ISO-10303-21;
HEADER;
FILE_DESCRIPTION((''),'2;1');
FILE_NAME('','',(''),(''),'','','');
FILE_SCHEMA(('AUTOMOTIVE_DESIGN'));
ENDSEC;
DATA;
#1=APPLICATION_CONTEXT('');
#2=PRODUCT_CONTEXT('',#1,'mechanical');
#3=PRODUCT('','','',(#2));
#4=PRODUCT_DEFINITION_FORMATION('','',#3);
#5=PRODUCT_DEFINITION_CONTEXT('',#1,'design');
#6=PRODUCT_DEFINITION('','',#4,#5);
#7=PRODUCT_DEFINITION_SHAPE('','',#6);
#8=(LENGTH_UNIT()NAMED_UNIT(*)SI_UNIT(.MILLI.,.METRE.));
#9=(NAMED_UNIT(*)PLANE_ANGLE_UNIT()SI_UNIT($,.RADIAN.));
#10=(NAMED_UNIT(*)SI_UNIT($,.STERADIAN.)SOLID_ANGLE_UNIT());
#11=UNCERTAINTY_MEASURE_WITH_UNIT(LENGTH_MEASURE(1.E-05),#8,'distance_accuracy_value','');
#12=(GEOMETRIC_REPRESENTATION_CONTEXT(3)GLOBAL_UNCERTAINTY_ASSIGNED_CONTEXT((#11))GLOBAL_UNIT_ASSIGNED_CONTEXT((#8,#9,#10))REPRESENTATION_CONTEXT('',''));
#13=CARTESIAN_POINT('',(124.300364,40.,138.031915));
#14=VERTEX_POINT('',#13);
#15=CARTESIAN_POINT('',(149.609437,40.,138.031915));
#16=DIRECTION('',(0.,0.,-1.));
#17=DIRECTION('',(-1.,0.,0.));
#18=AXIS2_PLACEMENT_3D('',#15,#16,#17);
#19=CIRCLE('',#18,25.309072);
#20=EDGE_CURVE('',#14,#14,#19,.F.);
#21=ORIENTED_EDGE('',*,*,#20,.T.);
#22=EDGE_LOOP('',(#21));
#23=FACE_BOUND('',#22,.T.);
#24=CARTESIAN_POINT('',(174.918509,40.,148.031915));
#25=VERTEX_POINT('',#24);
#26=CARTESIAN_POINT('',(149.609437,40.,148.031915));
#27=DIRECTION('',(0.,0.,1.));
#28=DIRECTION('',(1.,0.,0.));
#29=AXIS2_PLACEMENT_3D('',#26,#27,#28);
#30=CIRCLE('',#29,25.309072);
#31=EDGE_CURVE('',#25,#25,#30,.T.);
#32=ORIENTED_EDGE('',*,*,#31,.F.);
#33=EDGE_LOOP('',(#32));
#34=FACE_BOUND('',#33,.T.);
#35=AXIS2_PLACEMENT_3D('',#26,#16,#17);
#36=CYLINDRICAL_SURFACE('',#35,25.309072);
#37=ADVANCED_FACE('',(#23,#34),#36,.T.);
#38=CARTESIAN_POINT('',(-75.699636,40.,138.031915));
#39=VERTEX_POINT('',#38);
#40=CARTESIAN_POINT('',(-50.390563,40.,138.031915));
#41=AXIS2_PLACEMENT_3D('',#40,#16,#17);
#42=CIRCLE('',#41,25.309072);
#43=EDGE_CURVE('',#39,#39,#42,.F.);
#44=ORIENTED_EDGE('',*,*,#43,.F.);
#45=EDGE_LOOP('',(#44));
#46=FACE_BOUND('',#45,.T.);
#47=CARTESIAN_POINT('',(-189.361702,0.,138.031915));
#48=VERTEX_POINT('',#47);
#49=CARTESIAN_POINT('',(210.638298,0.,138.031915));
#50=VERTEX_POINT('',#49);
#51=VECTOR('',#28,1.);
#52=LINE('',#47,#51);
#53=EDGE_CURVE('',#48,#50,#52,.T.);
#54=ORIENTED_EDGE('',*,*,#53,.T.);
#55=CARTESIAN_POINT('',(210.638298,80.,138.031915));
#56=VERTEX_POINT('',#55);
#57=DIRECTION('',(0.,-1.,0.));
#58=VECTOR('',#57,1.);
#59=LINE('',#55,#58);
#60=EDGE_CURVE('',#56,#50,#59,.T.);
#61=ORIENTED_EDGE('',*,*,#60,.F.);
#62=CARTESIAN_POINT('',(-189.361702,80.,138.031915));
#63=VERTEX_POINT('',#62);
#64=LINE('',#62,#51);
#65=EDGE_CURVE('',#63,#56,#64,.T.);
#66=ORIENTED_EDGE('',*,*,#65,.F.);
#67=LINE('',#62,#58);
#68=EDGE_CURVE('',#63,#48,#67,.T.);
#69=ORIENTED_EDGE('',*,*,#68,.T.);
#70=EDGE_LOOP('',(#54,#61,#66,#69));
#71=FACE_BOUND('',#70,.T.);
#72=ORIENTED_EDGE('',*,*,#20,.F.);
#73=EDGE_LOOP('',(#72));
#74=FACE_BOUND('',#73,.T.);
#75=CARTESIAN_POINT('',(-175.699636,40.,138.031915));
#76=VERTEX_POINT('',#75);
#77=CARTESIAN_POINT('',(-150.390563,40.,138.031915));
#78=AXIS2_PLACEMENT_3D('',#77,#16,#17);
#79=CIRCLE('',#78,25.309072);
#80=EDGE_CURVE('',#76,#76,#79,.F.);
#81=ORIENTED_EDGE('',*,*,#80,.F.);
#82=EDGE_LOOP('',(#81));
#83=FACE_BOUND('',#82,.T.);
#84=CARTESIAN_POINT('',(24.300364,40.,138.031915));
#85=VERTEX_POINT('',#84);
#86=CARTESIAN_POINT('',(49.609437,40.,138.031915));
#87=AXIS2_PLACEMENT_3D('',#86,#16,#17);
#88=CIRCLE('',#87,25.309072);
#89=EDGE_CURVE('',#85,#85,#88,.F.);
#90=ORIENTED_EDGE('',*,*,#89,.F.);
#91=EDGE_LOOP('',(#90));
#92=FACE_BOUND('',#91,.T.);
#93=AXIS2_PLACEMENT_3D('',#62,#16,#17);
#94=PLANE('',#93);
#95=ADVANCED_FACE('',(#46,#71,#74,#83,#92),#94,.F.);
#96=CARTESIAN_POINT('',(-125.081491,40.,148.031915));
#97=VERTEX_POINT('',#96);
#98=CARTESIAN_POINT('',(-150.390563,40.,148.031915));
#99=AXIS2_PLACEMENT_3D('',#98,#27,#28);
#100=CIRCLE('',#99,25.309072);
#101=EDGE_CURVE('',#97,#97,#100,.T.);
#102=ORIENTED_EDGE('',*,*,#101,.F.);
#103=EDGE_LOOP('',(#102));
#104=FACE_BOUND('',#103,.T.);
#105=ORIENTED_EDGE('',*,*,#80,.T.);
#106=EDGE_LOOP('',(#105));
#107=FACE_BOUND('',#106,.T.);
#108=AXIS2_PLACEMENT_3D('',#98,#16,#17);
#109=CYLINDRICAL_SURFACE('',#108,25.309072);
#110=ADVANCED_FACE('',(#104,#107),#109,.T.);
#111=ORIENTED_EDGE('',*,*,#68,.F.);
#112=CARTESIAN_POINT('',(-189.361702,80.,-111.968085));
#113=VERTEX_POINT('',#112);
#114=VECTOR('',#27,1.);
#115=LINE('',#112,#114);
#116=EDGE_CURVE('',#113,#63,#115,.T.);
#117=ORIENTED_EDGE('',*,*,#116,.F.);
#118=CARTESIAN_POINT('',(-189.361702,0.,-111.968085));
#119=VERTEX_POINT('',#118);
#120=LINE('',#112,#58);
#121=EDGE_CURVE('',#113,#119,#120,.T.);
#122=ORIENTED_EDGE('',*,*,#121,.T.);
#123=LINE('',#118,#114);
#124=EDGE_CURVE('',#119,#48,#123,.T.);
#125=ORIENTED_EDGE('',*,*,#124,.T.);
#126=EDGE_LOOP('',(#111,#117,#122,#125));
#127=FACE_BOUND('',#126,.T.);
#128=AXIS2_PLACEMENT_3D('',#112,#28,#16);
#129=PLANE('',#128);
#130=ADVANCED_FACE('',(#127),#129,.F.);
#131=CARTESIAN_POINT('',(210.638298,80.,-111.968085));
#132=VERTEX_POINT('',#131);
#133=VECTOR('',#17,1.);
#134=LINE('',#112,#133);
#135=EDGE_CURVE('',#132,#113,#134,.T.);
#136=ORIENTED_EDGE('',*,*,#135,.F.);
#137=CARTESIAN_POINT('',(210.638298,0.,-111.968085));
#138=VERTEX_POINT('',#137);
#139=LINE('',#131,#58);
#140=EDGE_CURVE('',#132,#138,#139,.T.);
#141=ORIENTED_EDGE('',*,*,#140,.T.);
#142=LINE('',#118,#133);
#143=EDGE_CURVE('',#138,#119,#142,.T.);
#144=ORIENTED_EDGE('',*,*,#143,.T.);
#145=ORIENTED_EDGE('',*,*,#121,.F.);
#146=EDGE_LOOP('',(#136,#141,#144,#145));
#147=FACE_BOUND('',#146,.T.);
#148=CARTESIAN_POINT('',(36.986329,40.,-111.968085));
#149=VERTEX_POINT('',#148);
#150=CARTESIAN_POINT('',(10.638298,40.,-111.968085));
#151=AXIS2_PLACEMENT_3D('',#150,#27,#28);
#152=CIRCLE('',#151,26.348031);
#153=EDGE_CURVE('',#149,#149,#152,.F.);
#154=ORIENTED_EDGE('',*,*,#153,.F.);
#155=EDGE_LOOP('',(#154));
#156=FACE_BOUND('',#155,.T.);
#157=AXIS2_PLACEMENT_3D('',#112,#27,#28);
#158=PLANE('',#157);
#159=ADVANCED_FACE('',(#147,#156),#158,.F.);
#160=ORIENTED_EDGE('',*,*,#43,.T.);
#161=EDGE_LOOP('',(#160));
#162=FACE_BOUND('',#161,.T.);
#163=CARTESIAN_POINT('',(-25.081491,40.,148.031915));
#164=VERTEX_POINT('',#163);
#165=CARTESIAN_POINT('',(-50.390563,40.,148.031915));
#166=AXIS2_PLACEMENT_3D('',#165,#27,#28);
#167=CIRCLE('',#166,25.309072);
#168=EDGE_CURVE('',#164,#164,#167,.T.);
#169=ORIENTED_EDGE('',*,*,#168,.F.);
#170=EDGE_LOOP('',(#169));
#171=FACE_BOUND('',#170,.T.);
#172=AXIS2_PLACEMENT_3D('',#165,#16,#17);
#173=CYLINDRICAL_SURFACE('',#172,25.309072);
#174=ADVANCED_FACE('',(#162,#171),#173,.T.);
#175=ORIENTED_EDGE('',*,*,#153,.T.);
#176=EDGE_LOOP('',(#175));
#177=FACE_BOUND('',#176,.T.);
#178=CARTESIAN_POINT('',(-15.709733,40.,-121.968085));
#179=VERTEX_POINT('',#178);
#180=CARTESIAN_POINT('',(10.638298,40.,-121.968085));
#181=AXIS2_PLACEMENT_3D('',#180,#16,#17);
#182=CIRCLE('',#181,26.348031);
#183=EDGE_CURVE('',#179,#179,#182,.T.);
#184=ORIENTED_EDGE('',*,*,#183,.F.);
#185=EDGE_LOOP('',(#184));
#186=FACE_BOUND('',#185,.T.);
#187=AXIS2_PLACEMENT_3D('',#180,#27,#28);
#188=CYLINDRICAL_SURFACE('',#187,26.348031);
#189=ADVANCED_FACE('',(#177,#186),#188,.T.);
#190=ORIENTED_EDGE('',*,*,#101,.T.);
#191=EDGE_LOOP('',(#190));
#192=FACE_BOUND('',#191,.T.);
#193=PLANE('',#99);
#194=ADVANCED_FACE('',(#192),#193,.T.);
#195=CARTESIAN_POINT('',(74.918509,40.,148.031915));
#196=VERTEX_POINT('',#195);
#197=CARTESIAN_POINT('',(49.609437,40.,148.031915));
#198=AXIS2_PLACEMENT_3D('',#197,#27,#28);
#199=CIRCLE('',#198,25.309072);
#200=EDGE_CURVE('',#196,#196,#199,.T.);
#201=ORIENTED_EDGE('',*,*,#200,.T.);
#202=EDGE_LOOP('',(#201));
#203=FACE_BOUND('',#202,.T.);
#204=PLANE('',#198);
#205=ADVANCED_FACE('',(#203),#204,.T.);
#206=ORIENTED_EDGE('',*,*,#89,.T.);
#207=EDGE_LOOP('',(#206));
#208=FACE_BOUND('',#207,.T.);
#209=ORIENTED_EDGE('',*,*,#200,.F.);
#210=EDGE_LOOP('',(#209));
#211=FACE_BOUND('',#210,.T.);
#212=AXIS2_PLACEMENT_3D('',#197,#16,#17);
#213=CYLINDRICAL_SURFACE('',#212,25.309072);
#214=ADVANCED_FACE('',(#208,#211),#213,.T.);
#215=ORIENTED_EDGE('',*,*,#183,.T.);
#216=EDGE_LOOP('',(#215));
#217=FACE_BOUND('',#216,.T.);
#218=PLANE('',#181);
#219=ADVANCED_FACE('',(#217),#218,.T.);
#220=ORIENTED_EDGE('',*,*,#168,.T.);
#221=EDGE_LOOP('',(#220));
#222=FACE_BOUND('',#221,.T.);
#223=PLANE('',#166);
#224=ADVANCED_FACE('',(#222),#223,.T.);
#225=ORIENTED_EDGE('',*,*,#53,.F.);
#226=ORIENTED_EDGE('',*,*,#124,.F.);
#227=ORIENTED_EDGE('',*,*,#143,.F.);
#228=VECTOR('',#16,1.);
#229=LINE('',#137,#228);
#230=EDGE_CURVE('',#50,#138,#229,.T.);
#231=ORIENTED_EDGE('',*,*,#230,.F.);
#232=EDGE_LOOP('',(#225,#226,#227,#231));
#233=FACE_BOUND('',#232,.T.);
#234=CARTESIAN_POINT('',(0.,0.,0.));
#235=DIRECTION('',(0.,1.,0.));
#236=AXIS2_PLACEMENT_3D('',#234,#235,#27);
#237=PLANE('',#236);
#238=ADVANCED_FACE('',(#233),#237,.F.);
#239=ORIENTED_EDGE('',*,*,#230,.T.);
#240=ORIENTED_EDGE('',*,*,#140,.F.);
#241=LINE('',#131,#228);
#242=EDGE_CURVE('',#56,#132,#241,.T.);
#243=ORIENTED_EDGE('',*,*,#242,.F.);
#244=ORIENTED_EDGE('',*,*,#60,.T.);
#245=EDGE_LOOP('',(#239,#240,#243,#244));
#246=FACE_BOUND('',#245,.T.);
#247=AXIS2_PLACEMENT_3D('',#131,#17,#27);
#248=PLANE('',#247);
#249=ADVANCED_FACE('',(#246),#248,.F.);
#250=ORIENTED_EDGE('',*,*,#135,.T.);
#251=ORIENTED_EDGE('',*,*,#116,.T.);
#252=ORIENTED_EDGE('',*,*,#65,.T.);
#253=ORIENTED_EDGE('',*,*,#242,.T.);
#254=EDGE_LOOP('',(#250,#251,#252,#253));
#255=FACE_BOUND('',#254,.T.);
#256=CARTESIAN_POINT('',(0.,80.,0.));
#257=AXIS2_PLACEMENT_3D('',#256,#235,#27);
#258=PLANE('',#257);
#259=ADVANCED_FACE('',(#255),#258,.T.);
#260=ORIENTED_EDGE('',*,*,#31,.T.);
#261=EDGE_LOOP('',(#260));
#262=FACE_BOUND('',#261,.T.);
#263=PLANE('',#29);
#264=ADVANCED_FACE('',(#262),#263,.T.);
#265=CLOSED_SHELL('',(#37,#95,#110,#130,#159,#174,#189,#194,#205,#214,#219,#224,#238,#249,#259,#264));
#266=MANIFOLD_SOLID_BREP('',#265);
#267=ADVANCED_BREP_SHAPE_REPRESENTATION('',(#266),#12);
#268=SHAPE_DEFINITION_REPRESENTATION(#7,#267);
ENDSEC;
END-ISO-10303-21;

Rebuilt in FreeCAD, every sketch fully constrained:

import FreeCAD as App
import Part
import Sketcher

V = App.Vector
Q = App.Units.Quantity

doc = App.newDocument("Part")
body = doc.addObject("PartDesign::Body", "Body")

# Sketch on XZ plane
sketch1 = body.newObject("Sketcher::SketchObject", "Sketch")
sketch1.AttachmentSupport = (doc.getObject("XZ_Plane"), [""])
sketch1.MapMode = "FlatFace"
sketch1.addGeometry(Part.LineSegment(V(-189.361702, -111.968085, 0), V(-189.361702, 138.031915, 0)), False)
sketch1.addGeometry(Part.LineSegment(V(-189.361702, 138.031915, 0), V(210.638298, 138.031915, 0)), False)
sketch1.addGeometry(Part.LineSegment(V(210.638298, 138.031915, 0), V(210.638298, -111.968085, 0)), False)
sketch1.addGeometry(Part.LineSegment(V(210.638298, -111.968085, 0), V(-189.361702, -111.968085, 0)), False)
sketch1.addConstraint(Sketcher.Constraint("Coincident", 0, 2, 1, 1))
sketch1.addConstraint(Sketcher.Constraint("Coincident", 1, 2, 2, 1))
sketch1.addConstraint(Sketcher.Constraint("Coincident", 2, 2, 3, 1))
sketch1.addConstraint(Sketcher.Constraint("Coincident", 3, 2, 0, 1))
sketch1.addConstraint(Sketcher.Constraint("Vertical", 0))
sketch1.addConstraint(Sketcher.Constraint("Horizontal", 1))
sketch1.addConstraint(Sketcher.Constraint("Vertical", 2))
sketch1.addConstraint(Sketcher.Constraint("Horizontal", 3))
sketch1.addConstraint(Sketcher.Constraint("DistanceX", 1, 1, 1, 2, Q("400 mm")))
sketch1.addConstraint(Sketcher.Constraint("DistanceY", 0, 1, 0, 2, Q("250 mm")))
sketch1.addConstraint(Sketcher.Constraint("DistanceX", 0, 2, -1, 1, Q("189.361702 mm")))
sketch1.addConstraint(Sketcher.Constraint("DistanceY", -1, 1, 0, 2, Q("138.031915 mm")))
pad1 = body.newObject("PartDesign::Pad", "Pad")
pad1.Profile = sketch1
pad1.Length = 80
pad1.Reversed = True

# Sketch on XY plane
sketch2 = body.newObject("Sketcher::SketchObject", "Sketch001")
sketch2.AttachmentSupport = (doc.getObject("XY_Plane"), [""])
sketch2.MapMode = "FlatFace"
sketch2.AttachmentOffset = App.Placement(V(0, 0, -111.968085), App.Rotation())
sketch2.addGeometry(Part.Circle(V(10.638298, 40, 0), V(0, 0, 1), 26.348031), False)
sketch2.addConstraint(Sketcher.Constraint("DistanceY", -1, 1, 0, 3, Q("40 mm")))
sketch2.addConstraint(Sketcher.Constraint("Diameter", 0, Q("52.696062 mm")))
sketch2.addConstraint(Sketcher.Constraint("DistanceX", -1, 1, 0, 3, Q("10.638298 mm")))
pad2 = body.newObject("PartDesign::Pad", "Pad001")
pad2.Profile = sketch2
pad2.Length = 10
pad2.Reversed = True

# Sketch on XY plane
sketch3 = body.newObject("Sketcher::SketchObject", "Sketch002")
sketch3.AttachmentSupport = (doc.getObject("XY_Plane"), [""])
sketch3.MapMode = "FlatFace"
sketch3.AttachmentOffset = App.Placement(V(0, 0, 138.031915), App.Rotation())
sketch3.addGeometry(Part.Circle(V(-150.390563, 40, 0), V(0, 0, 1), 25.309072), False)
sketch3.addGeometry(Part.Circle(V(-50.390563, 40, 0), V(0, 0, 1), 25.309072), False)
sketch3.addGeometry(Part.Circle(V(49.609437, 40, 0), V(0, 0, 1), 25.309072), False)
sketch3.addGeometry(Part.Circle(V(149.609437, 40, 0), V(0, 0, 1), 25.309072), False)
sketch3.addConstraint(Sketcher.Constraint("Equal", 0, 1))
sketch3.addConstraint(Sketcher.Constraint("Equal", 1, 2))
sketch3.addConstraint(Sketcher.Constraint("Equal", 2, 3))
sketch3.addConstraint(Sketcher.Constraint("Horizontal", 0, 3, 1, 3))
sketch3.addConstraint(Sketcher.Constraint("Horizontal", 1, 3, 2, 3))
sketch3.addConstraint(Sketcher.Constraint("Horizontal", 2, 3, 3, 3))
sketch3.addConstraint(Sketcher.Constraint("DistanceY", -1, 1, 0, 3, Q("40 mm")))
sketch3.addConstraint(Sketcher.Constraint("DistanceX", 0, 3, 1, 3, Q("100 mm")))
sketch3.addConstraint(Sketcher.Constraint("DistanceX", 1, 3, 2, 3, Q("100 mm")))
sketch3.addConstraint(Sketcher.Constraint("DistanceX", 2, 3, 3, 3, Q("100 mm")))
sketch3.addConstraint(Sketcher.Constraint("Diameter", 0, Q("50.618144 mm")))
sketch3.addConstraint(Sketcher.Constraint("DistanceX", 0, 3, -1, 1, Q("150.390563 mm")))
pad3 = body.newObject("PartDesign::Pad", "Pad002")
pad3.Profile = sketch3
pad3.Length = 10

doc.recompute()
